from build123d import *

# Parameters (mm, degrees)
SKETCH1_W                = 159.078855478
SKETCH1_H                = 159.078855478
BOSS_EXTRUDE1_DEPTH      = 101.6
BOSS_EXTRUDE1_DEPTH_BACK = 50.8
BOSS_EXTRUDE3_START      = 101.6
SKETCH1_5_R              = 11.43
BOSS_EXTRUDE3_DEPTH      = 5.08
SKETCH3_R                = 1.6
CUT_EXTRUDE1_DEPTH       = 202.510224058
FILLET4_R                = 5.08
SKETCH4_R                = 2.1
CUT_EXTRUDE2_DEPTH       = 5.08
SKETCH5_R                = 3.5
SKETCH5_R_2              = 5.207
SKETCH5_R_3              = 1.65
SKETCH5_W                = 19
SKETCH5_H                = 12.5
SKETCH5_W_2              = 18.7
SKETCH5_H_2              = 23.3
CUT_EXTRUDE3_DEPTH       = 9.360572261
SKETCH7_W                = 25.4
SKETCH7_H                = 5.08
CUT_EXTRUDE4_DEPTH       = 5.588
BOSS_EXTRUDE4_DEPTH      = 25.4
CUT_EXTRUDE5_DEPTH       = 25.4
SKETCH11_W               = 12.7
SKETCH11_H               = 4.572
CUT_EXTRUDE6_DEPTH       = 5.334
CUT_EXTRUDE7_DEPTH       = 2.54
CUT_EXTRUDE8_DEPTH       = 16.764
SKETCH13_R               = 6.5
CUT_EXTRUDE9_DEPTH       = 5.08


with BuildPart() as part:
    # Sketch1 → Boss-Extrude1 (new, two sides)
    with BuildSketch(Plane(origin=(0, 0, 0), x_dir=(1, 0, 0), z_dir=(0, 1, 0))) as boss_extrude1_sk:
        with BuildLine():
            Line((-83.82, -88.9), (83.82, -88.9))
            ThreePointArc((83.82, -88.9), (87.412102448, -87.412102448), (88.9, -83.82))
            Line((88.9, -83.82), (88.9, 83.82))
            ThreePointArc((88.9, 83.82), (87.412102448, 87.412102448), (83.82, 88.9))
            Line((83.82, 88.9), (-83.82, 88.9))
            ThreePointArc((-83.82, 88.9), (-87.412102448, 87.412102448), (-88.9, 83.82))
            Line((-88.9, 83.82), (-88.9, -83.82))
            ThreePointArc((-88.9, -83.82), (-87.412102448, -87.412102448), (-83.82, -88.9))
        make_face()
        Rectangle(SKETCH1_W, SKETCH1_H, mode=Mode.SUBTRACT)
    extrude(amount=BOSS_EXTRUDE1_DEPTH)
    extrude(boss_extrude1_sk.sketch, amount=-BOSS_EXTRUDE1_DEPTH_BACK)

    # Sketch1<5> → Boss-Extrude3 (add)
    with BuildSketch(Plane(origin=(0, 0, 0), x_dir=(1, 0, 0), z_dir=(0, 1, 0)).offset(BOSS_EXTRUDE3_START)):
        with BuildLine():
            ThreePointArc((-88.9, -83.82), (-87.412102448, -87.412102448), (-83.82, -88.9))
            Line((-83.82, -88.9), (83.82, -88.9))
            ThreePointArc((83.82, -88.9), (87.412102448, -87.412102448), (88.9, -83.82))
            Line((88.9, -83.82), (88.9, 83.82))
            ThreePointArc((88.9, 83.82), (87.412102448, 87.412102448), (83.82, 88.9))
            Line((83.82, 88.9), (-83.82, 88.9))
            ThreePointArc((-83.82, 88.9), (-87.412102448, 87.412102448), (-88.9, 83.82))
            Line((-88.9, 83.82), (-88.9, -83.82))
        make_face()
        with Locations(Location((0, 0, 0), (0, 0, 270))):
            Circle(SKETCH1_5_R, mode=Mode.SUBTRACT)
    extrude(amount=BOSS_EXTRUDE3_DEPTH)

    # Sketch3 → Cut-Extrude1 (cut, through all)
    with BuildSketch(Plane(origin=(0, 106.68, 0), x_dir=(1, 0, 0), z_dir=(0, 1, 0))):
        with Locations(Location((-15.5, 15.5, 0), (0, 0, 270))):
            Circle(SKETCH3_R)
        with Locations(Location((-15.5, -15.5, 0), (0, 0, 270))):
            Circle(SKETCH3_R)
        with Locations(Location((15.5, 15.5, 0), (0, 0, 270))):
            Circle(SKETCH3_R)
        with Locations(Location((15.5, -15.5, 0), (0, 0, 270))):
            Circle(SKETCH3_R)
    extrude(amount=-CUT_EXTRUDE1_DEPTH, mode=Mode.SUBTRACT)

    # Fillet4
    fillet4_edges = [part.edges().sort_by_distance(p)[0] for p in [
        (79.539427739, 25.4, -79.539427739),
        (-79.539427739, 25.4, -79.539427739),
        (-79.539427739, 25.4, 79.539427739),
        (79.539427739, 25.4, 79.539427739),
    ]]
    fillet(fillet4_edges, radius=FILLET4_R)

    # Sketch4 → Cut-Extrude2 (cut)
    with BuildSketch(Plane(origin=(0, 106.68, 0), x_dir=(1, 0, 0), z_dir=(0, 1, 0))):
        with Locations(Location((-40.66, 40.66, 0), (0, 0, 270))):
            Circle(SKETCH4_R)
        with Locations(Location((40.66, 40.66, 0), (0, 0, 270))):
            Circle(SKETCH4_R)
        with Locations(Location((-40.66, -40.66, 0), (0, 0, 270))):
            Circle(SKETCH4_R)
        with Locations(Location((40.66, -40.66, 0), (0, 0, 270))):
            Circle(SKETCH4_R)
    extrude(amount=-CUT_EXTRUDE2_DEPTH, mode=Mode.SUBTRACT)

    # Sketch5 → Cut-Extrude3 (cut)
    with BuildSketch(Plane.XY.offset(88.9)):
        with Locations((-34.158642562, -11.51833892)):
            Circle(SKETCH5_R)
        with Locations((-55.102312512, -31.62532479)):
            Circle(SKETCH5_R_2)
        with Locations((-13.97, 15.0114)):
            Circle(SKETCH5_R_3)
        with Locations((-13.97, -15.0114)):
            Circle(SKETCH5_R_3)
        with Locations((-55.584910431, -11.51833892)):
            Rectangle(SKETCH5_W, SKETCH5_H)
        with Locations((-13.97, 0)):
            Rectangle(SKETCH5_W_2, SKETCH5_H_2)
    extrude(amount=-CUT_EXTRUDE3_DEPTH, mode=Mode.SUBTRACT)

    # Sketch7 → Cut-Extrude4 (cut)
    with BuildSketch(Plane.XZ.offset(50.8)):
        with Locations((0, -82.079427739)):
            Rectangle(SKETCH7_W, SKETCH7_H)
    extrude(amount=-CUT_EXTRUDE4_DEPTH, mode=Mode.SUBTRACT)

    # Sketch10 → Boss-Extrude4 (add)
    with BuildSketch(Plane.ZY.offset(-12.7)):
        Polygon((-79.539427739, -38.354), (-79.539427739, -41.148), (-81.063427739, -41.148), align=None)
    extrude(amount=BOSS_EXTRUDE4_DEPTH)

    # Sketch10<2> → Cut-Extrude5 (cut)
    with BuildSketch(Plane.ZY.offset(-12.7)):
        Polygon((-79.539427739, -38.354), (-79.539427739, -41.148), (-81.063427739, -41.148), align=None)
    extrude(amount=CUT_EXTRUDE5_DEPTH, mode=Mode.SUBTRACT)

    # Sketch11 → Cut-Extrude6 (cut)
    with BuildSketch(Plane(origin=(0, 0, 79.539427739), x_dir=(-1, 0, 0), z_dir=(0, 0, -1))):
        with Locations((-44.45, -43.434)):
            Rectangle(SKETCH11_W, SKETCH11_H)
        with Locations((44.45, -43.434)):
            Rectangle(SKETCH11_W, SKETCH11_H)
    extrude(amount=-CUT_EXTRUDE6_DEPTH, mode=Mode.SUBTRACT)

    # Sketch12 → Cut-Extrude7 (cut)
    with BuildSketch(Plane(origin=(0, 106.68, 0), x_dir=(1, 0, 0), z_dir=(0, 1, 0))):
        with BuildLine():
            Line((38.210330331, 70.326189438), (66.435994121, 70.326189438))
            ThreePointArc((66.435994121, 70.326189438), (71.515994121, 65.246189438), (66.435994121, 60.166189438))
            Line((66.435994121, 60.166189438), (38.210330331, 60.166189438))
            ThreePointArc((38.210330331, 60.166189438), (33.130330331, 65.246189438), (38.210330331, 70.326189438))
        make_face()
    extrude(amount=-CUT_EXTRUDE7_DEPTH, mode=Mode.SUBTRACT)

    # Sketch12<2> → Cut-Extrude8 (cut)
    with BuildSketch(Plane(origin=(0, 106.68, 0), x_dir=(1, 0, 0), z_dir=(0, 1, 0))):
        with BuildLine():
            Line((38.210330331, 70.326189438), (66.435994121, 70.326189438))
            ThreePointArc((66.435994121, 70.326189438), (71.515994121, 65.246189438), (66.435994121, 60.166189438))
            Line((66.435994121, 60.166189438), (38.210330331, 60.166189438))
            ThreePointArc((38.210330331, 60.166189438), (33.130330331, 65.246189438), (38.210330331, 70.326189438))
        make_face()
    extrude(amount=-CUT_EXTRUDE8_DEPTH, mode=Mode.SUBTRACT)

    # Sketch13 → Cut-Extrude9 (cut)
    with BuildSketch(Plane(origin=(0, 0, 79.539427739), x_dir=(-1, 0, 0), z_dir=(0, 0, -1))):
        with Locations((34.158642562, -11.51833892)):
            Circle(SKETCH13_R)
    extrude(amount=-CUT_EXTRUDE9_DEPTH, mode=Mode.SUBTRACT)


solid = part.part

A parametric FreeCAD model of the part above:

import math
import FreeCAD as App
import Part
import Sketcher

V = App.Vector
Q = App.Units.Quantity


def edges_at(feature, points):
    """Names of the edges that pass closest to the given points."""
    edges = feature.Shape.Edges
    near = lambda p: min(range(len(edges)), key=lambda i: edges[i].distToShape(Part.Vertex(*p))[0])
    return sorted({f"Edge{near(p) + 1}" for p in points})

doc = App.newDocument("Part")
body = doc.addObject("PartDesign::Body", "Body")

# Sketch on XZ plane
sketch1 = body.newObject("Sketcher::SketchObject", "Sketch")
sketch1.AttachmentSupport = (doc.getObject("XZ_Plane"), [""])
sketch1.MapMode = "FlatFace"
sketch1.addGeometry([
    Part.LineSegment(V(-84, 89, 0), V(84, 89, 0)),  # 0
    Part.ArcOfCircle(Part.Circle(V(84, 84, 0), V(0, 0, 1), 5), math.radians(0), math.radians(90)),  # 1
    Part.LineSegment(V(89, 84, 0), V(89, -84, 0)),  # 2
    Part.ArcOfCircle(Part.Circle(V(84, -84, 0), V(0, 0, 1), 5), math.radians(-90), math.radians(0)),  # 3
    Part.LineSegment(V(84, -89, 0), V(-84, -89, 0)),  # 4
    Part.ArcOfCircle(Part.Circle(V(-84, -84, 0), V(0, 0, 1), 5), math.radians(-180), math.radians(-90)),  # 5
    Part.LineSegment(V(-89, -84, 0), V(-89, 84, 0)),  # 6
    Part.ArcOfCircle(Part.Circle(V(-84, 84, 0), V(0, 0, 1), 5), math.radians(90), math.radians(180)),  # 7
    Part.LineSegment(V(80, 80, 0), V(-80, 80, 0)),  # 8
    Part.LineSegment(V(-80, 80, 0), V(-80, -80, 0)),  # 9
    Part.LineSegment(V(-80, -80, 0), V(80, -80, 0)),  # 10
    Part.LineSegment(V(80, -80, 0), V(80, 80, 0)),  # 11
], False)
sketch1.addConstraint([
    Sketcher.Constraint("Tangent", 0, 2, 1, 2),
    Sketcher.Constraint("Tangent", 1, 1, 2, 1),
    Sketcher.Constraint("Tangent", 2, 2, 3, 2),
    Sketcher.Constraint("Tangent", 3, 1, 4, 1),
    Sketcher.Constraint("Tangent", 4, 2, 5, 2),
    Sketcher.Constraint("Tangent", 5, 1, 6, 1),
    Sketcher.Constraint("Tangent", 6, 2, 7, 2),
    Sketcher.Constraint("Tangent", 7, 1, 0, 1),
    Sketcher.Constraint("Coincident", 8, 2, 9, 1),
    Sketcher.Constraint("Coincident", 9, 2, 10, 1),
    Sketcher.Constraint("Coincident", 10, 2, 11, 1),
    Sketcher.Constraint("Coincident", 11, 2, 8, 1),
    Sketcher.Constraint("Horizontal", 0),
    Sketcher.Constraint("Vertical", 2),
    Sketcher.Constraint("Horizontal", 4),
    Sketcher.Constraint("Vertical", 6),
    Sketcher.Constraint("Horizontal", 8),
    Sketcher.Constraint("Vertical", 9),
    Sketcher.Constraint("Horizontal", 10),
    Sketcher.Constraint("Vertical", 11),
    Sketcher.Constraint("Equal", 1, 3),
    Sketcher.Constraint("Equal", 3, 5),
    Sketcher.Constraint("Equal", 5, 7),
    Sketcher.Constraint("Symmetric", 1, 3, 5, 3, -1, 1),
    Sketcher.Constraint("Symmetric", 8, 2, 10, 2, -1, 1),
    Sketcher.Constraint("Equal", 4, 2),
    Sketcher.Constraint("Equal", 10, 9),
    Sketcher.Constraint("Radius", 1, Q("0.2 in")),
    Sketcher.Constraint("DistanceX", 0, 1, 0, 2, Q("6.6 in")),
    Sketcher.Constraint("DistanceX", 8, 2, 8, 1, 159.078855),
])
pad1 = body.newObject("PartDesign::Pad", "Pad")
pad1.Profile = sketch1
pad1.Type = "TwoLengths"
pad1.Length = Q("4 in")
pad1.Length2 = Q("2 in")
pad1.Reversed = True

# Sketch on XZ plane
sketch2 = body.newObject("Sketcher::SketchObject", "Sketch001")
sketch2.AttachmentSupport = (doc.getObject("XZ_Plane"), [""])
sketch2.MapMode = "FlatFace"
sketch2.AttachmentOffset = App.Placement(V(0, 0, -4 * 25.4), App.Rotation())
sketch2.addGeometry([
    Part.ArcOfCircle(Part.Circle(V(-84, 84, 0), V(0, 0, 1), 5), math.radians(90), math.radians(180)),  # 0
    Part.LineSegment(V(-84, 89, 0), V(84, 89, 0)),  # 1
    Part.ArcOfCircle(Part.Circle(V(84, 84, 0), V(0, 0, 1), 5), math.radians(0), math.radians(90)),  # 2
    Part.LineSegment(V(89, 84, 0), V(89, -84, 0)),  # 3
    Part.ArcOfCircle(Part.Circle(V(84, -84, 0), V(0, 0, 1), 5), math.radians(-90), math.radians(0)),  # 4
    Part.LineSegment(V(84, -89, 0), V(-84, -89, 0)),  # 5
    Part.ArcOfCircle(Part.Circle(V(-84, -84, 0), V(0, 0, 1), 5), math.radians(-180), math.radians(-90)),  # 6
    Part.LineSegment(V(-89, -84, 0), V(-89, 84, 0)),  # 7
    Part.Circle(V(0, 0, 0), V(0, 0, 1), 11),  # 8
], False)
sketch2.addConstraint([
    Sketcher.Constraint("Tangent", 0, 1, 1, 1),
    Sketcher.Constraint("Tangent", 1, 2, 2, 2),
    Sketcher.Constraint("Tangent", 2, 1, 3, 1),
    Sketcher.Constraint("Tangent", 3, 2, 4, 2),
    Sketcher.Constraint("Tangent", 4, 1, 5, 1),
    Sketcher.Constraint("Tangent", 5, 2, 6, 2),
    Sketcher.Constraint("Tangent", 6, 1, 7, 1),
    Sketcher.Constraint("Tangent", 7, 2, 0, 2),
    Sketcher.Constraint("Horizontal", 1),
    Sketcher.Constraint("Vertical", 3),
    Sketcher.Constraint("Horizontal", 5),
    Sketcher.Constraint("Vertical", 7),
    Sketcher.Constraint("Coincident", 8, 3, -1, 1),
    Sketcher.Constraint("Equal", 0, 2),
    Sketcher.Constraint("Equal", 2, 4),
    Sketcher.Constraint("Equal", 4, 6),
    Sketcher.Constraint("Symmetric", 0, 3, 4, 3, -1, 1),
    Sketcher.Constraint("Equal", 5, 3),
    Sketcher.Constraint("Diameter", 8, Q("0.9 in")),
    Sketcher.Constraint("Radius", 0, Q("0.2 in")),
    Sketcher.Constraint("DistanceX", 1, 1, 1, 2, Q("6.6 in")),
])
pad2 = body.newObject("PartDesign::Pad", "Pad001")
pad2.Profile = sketch2
pad2.Length = Q("0.2 in")
pad2.Reversed = True

# Sketch on XZ plane
sketch3 = body.newObject("Sketcher::SketchObject", "Sketch002")
sketch3.AttachmentSupport = (doc.getObject("XZ_Plane"), [""])
sketch3.MapMode = "FlatFace"
sketch3.AttachmentOffset = App.Placement(V(0, 0, -4.2 * 25.4), App.Rotation())
sketch3.addGeometry([
    Part.Circle(V(-15.5, -15.5, 0), V(0, 0, 1), 1.6),
    Part.Circle(V(-15.5, 15.5, 0), V(0, 0, 1), 1.6),
    Part.Circle(V(15.5, -15.5, 0), V(0, 0, 1), 1.6),
    Part.Circle(V(15.5, 15.5, 0), V(0, 0, 1), 1.6),
], False)
sketch3.addConstraint([
    Sketcher.Constraint("Equal", 0, 1),
    Sketcher.Constraint("Equal", 1, 2),
    Sketcher.Constraint("Equal", 2, 3),
    Sketcher.Constraint("Symmetric", 1, 3, 2, 3, -1, 1),
    Sketcher.Constraint("Symmetric", 0, 3, 3, 3, -1, 1),
    Sketcher.Constraint("Symmetric", 0, 3, 2, 3, -2),
    Sketcher.Constraint("Diameter", 0, 3.2),
    Sketcher.Constraint("DistanceX", 0, 3, -1, 1, 15.5),
    Sketcher.Constraint("DistanceY", 0, 3, -1, 1, 15.5),
])
pocket1 = body.newObject("PartDesign::Pocket", "Pocket")
pocket1.Profile = sketch3
pocket1.Type = "ThroughAll"
pocket1.Reversed = True
doc.recompute()

fillet = body.newObject("PartDesign::Fillet", "Fillet")
fillet.Base = (pocket1, edges_at(pocket1, [
    (79.539, 25.4, -79.539),
    (-79.539, 25.4, -79.539),
    (-79.539, 25.4, 79.539),
    (79.539, 25.4, 79.539),
]))
fillet.Radius = Q("0.2 in")

# Sketch on XZ plane
sketch4 = body.newObject("Sketcher::SketchObject", "Sketch003")
sketch4.AttachmentSupport = (doc.getObject("XZ_Plane"), [""])
sketch4.MapMode = "FlatFace"
sketch4.AttachmentOffset = App.Placement(V(0, 0, -4.2 * 25.4), App.Rotation())
sketch4.addGeometry([
    Part.Circle(V(-40.7, -40.7, 0), V(0, 0, 1), 2.1),
    Part.Circle(V(40.7, -40.7, 0), V(0, 0, 1), 2.1),
    Part.Circle(V(-40.7, 40.7, 0), V(0, 0, 1), 2.1),
    Part.Circle(V(40.7, 40.7, 0), V(0, 0, 1), 2.1),
], False)
sketch4.addConstraint([
    Sketcher.Constraint("Equal", 0, 1),
    Sketcher.Constraint("Equal", 1, 2),
    Sketcher.Constraint("Equal", 2, 3),
    Sketcher.Constraint("Symmetric", 1, 3, 2, 3, -1, 1),
    Sketcher.Constraint("Symmetric", 0, 3, 3, 3, -1, 1),
    Sketcher.Constraint("Symmetric", 0, 3, 1, 3, -2),
    Sketcher.Constraint("Diameter", 0, 4.2),
    Sketcher.Constraint("DistanceX", 0, 3, -1, 1, 40.66),
    Sketcher.Constraint("DistanceY", 0, 3, -1, 1, 40.66),
])
pocket2 = body.newObject("PartDesign::Pocket", "Pocket001")
pocket2.Profile = sketch4
pocket2.Length = Q("0.2 in")
pocket2.Reversed = True

# Sketch on XY plane
sketch5 = body.newObject("Sketcher::SketchObject", "Sketch004")
sketch5.AttachmentSupport = (doc.getObject("XY_Plane"), [""])
sketch5.MapMode = "FlatFace"
sketch5.AttachmentOffset = App.Placement(V(0, 0, 3.5 * 25.4), App.Rotation())
sketch5.addGeometry([
    Part.Circle(V(-34.2, -11.5, 0), V(0, 0, 1), 3.5),  # 0
    Part.Circle(V(-55.1, -31.6, 0), V(0, 0, 1), 5.2),  # 1
    Part.Circle(V(-14, 15, 0), V(0, 0, 1), 1.6),  # 2
    Part.Circle(V(-14, -15, 0), V(0, 0, 1), 1.6),  # 3
    Part.LineSegment(V(-65.1, -5.3, 0), V(-65.1, -17.8, 0)),  # 4
    Part.LineSegment(V(-65.1, -17.8, 0), V(-46.1, -17.8, 0)),  # 5
    Part.LineSegment(V(-46.1, -17.8, 0), V(-46.1, -5.3, 0)),  # 6
    Part.LineSegment(V(-46.1, -5.3, 0), V(-65.1, -5.3, 0)),  # 7
    Part.LineSegment(V(-23.3, 11.7, 0), V(-23.3, -11.7, 0)),  # 8
    Part.LineSegment(V(-23.3, -11.7, 0), V(-4.6, -11.7, 0)),  # 9
    Part.LineSegment(V(-4.6, -11.7, 0), V(-4.6, 11.7, 0)),  # 10
    Part.LineSegment(V(-4.6, 11.7, 0), V(-23.3, 11.7, 0)),  # 11
], False)
sketch5.addConstraint([
    Sketcher.Constraint("Coincident", 4, 2, 5, 1),
    Sketcher.Constraint("Coincident", 5, 2, 6, 1),
    Sketcher.Constraint("Coincident", 6, 2, 7, 1),
    Sketcher.Constraint("Coincident", 7, 2, 4, 1),
    Sketcher.Constraint("Coincident", 8, 2, 9, 1),
    Sketcher.Constraint("Coincident", 9, 2, 10, 1),
    Sketcher.Constraint("Coincident", 10, 2, 11, 1),
    Sketcher.Constraint("Coincident", 11, 2, 8, 1),
    Sketcher.Constraint("Vertical", 4),
    Sketcher.Constraint("Horizontal", 5),
    Sketcher.Constraint("Vertical", 6),
    Sketcher.Constraint("Horizontal", 7),
    Sketcher.Constraint("Vertical", 8),
    Sketcher.Constraint("Horizontal", 9),
    Sketcher.Constraint("Vertical", 10),
    Sketcher.Constraint("Horizontal", 11),
    Sketcher.Constraint("Equal", 2, 3),
    Sketcher.Constraint("Symmetric", 2, 3, 3, 3, -1),
    Sketcher.Constraint("Diameter", 1, Q("0.41 in")),
    Sketcher.Constraint("Diameter", 0, 7.0),
    Sketcher.Constraint("Diameter", 2, 3.3),
    Sketcher.Constraint("DistanceX", 2, 3, -1, 1, Q("0.55 in")),
    Sketcher.Constraint("DistanceY", -1, 1, 2, 3, Q("0.591 in")),
    Sketcher.Constraint("DistanceX", 5, 1, 5, 2, 19.0),
    Sketcher.Constraint("DistanceX", 9, 1, 9, 2, 18.7),
    Sketcher.Constraint("DistanceY", 4, 2, 4, 1, 12.5),
    Sketcher.Constraint("DistanceY", 8, 2, 8, 1, 23.3),
    Sketcher.Constraint("DistanceX", 8, 2, -1, 1, 23.32),
    Sketcher.Constraint("DistanceY", 8, 2, -1, 1, 11.65),
    Sketcher.Constraint("DistanceY", 4, 2, 0, 3, 6.25),
    Sketcher.Constraint("DistanceY", 0, 3, -1, 1, 11.518339),
    Sketcher.Constraint("DistanceX", 4, 2, -1, 1, 65.08491),
    Sketcher.Constraint("DistanceX", 1, 3, 0, 3, 20.94367),
    Sketcher.Constraint("DistanceX", 0, 3, -1, 1, 34.158643),
    Sketcher.Constraint("DistanceY", 1, 3, -1, 1, 31.625325),
])
pocket3 = body.newObject("PartDesign::Pocket", "Pocket002")
pocket3.Profile = sketch5
pocket3.Length = 9.360572

# Sketch on XZ plane
sketch6 = body.newObject("Sketcher::SketchObject", "Sketch005")
sketch6.AttachmentSupport = (doc.getObject("XZ_Plane"), [""])
sketch6.MapMode = "FlatFace"
sketch6.AttachmentOffset = App.Placement(V(0, 0, 2 * 25.4), App.Rotation())
sketch6.addGeometry([
    Part.LineSegment(V(-13, -80, 0), V(-13, -85, 0)),
    Part.LineSegment(V(-13, -85, 0), V(13, -85, 0)),
    Part.LineSegment(V(13, -85, 0), V(13, -80, 0)),
    Part.LineSegment(V(13, -80, 0), V(-13, -80, 0)),
], False)
sketch6.addConstraint([
    Sketcher.Constraint("Coincident", 0, 2, 1, 1),
    Sketcher.Constraint("Coincident", 1, 2, 2, 1),
    Sketcher.Constraint("Coincident", 2, 2, 3, 1),
    Sketcher.Constraint("Coincident", 3, 2, 0, 1),
    Sketcher.Constraint("Vertical", 0),
    Sketcher.Constraint("Horizontal", 1),
    Sketcher.Constraint("Vertical", 2),
    Sketcher.Constraint("Horizontal", 3),
    Sketcher.Constraint("DistanceX", 1, 1, 1, 2, Q("1 in")),
    Sketcher.Constraint("DistanceY", 0, 2, 0, 1, Q("0.2 in")),
    Sketcher.Constraint("DistanceX", 0, 2, -1, 1, Q("0.5 in")),
    Sketcher.Constraint("DistanceY", 0, 2, -1, 1, 84.619428),
])
pocket4 = body.newObject("PartDesign::Pocket", "Pocket003")
pocket4.Profile = sketch6
pocket4.Length = Q("0.22 in")

# Sketch on YZ plane
sketch7 = body.newObject("Sketcher::SketchObject", "Sketch006")
sketch7.AttachmentSupport = (doc.getObject("YZ_Plane"), [""])
sketch7.MapMode = "FlatFace"
sketch7.AttachmentOffset = App.Placement(V(0, 0, 0.5 * 25.4), App.Rotation())
sketch7.addGeometry([
    Part.LineSegment(V(-41.1, -79.5, 0), V(-38.4, -79.5, 0)),
    Part.LineSegment(V(-38.4, -79.5, 0), V(-41.1, -81.1, 0)),
    Part.LineSegment(V(-41.1, -81.1, 0), V(-41.1, -79.5, 0)),
], False)
sketch7.addConstraint([
    Sketcher.Constraint("Coincident", 0, 2, 1, 1),
    Sketcher.Constraint("Coincident", 1, 2, 2, 1),
    Sketcher.Constraint("Coincident", 2, 2, 0, 1),
    Sketcher.Constraint("Horizontal", 0),
    Sketcher.Constraint("Vertical", 2),
    Sketcher.Constraint("DistanceX", 0, 1, 0, 2, Q("0.11 in")),
    Sketcher.Constraint("DistanceY", 2, 1, 2, 2, Q("0.06 in")),
    Sketcher.Constraint("DistanceX", 0, 2, -1, 1, Q("1.51 in")),
    Sketcher.Constraint("DistanceY", 0, 2, -1, 1, 79.539428),
])
pad3 = body.newObject("PartDesign::Pad", "Pad002")
pad3.Profile = sketch7
pad3.Length = Q("1 in")
pad3.Reversed = True

# Sketch on YZ plane
sketch8 = body.newObject("Sketcher::SketchObject", "Sketch007")
sketch8.AttachmentSupport = (doc.getObject("YZ_Plane"), [""])
sketch8.MapMode = "FlatFace"
sketch8.AttachmentOffset = App.Placement(V(0, 0, 0.5 * 25.4), App.Rotation())
sketch8.addGeometry([
    Part.LineSegment(V(-41.1, -79.5, 0), V(-38.4, -79.5, 0)),
    Part.LineSegment(V(-38.4, -79.5, 0), V(-41.1, -81.1, 0)),
    Part.LineSegment(V(-41.1, -81.1, 0), V(-41.1, -79.5, 0)),
], False)
sketch8.addConstraint([
    Sketcher.Constraint("Coincident", 0, 2, 1, 1),
    Sketcher.Constraint("Coincident", 1, 2, 2, 1),
    Sketcher.Constraint("Coincident", 2, 2, 0, 1),
    Sketcher.Constraint("Horizontal", 0),
    Sketcher.Constraint("Vertical", 2),
    Sketcher.Constraint("DistanceX", 0, 1, 0, 2, Q("0.11 in")),
    Sketcher.Constraint("DistanceY", 2, 1, 2, 2, Q("0.06 in")),
    Sketcher.Constraint("DistanceX", 0, 2, -1, 1, Q("1.51 in")),
    Sketcher.Constraint("DistanceY", 0, 2, -1, 1, 79.539428),
])
pocket5 = body.newObject("PartDesign::Pocket", "Pocket004")
pocket5.Profile = sketch8
pocket5.Length = Q("1 in")

# Sketch on XY plane
sketch9 = body.newObject("Sketcher::SketchObject", "Sketch008")
sketch9.AttachmentSupport = (doc.getObject("XY_Plane"), [""])
sketch9.MapMode = "FlatFace"
sketch9.AttachmentOffset = App.Placement(V(0, 0, 79.539428), App.Rotation())
sketch9.addGeometry([
    Part.LineSegment(V(50.8, -41.1, 0), V(50.8, -45.7, 0)),  # 0
    Part.LineSegment(V(50.8, -45.7, 0), V(38.1, -45.7, 0)),  # 1
    Part.LineSegment(V(38.1, -45.7, 0), V(38.1, -41.1, 0)),  # 2
    Part.LineSegment(V(38.1, -41.1, 0), V(50.8, -41.1, 0)),  # 3
    Part.LineSegment(V(-38.1, -41.1, 0), V(-38.1, -45.7, 0)),  # 4
    Part.LineSegment(V(-38.1, -45.7, 0), V(-50.8, -45.7, 0)),  # 5
    Part.LineSegment(V(-50.8, -45.7, 0), V(-50.8, -41.1, 0)),  # 6
    Part.LineSegment(V(-50.8, -41.1, 0), V(-38.1, -41.1, 0)),  # 7
], False)
sketch9.addConstraint([
    Sketcher.Constraint("Coincident", 0, 2, 1, 1),
    Sketcher.Constraint("Coincident", 1, 2, 2, 1),
    Sketcher.Constraint("Coincident", 2, 2, 3, 1),
    Sketcher.Constraint("Coincident", 3, 2, 0, 1),
    Sketcher.Constraint("Coincident", 4, 2, 5, 1),
    Sketcher.Constraint("Coincident", 5, 2, 6, 1),
    Sketcher.Constraint("Coincident", 6, 2, 7, 1),
    Sketcher.Constraint("Coincident", 7, 2, 4, 1),
    Sketcher.Constraint("Vertical", 0),
    Sketcher.Constraint("Horizontal", 1),
    Sketcher.Constraint("Vertical", 2),
    Sketcher.Constraint("Horizontal", 3),
    Sketcher.Constraint("Vertical", 4),
    Sketcher.Constraint("Horizontal", 5),
    Sketcher.Constraint("Vertical", 6),
    Sketcher.Constraint("Horizontal", 7),
    Sketcher.Constraint("Symmetric", 1, 2, 4, 2, -2),
    Sketcher.Constraint("Symmetric", 3, 2, 6, 2, -2),
    Sketcher.Constraint("DistanceX", 1, 2, 1, 1, Q("0.5 in")),
    Sketcher.Constraint("DistanceX", -1, 1, 0, 2, Q("2 in")),
    Sketcher.Constraint("DistanceY", 0, 2, 0, 1, Q("0.18 in")),
    Sketcher.Constraint("DistanceY", 0, 2, -1, 1, Q("1.8 in")),
])
pocket6 = body.newObject("PartDesign::Pocket", "Pocket005")
pocket6.Profile = sketch9
pocket6.Length = Q("0.21 in")
pocket6.Reversed = True

# Sketch on XZ plane
sketch10 = body.newObject("Sketcher::SketchObject", "Sketch009")
sketch10.AttachmentSupport = (doc.getObject("XZ_Plane"), [""])
sketch10.MapMode = "FlatFace"
sketch10.AttachmentOffset = App.Placement(V(0, 0, -4.2 * 25.4), App.Rotation())
sketch10.addGeometry([
    Part.LineSegment(V(66, -70, 0), V(38, -70, 0)),
    Part.ArcOfCircle(Part.Circle(V(38, -65, 0), V(0, 0, 1), 5), math.radians(90), math.radians(270)),
    Part.LineSegment(V(38, -60, 0), V(66, -60, 0)),
    Part.ArcOfCircle(Part.Circle(V(66, -65, 0), V(0, 0, 1), 5), math.radians(-90), math.radians(90)),
], False)
sketch10.addConstraint([
    Sketcher.Constraint("Tangent", 0, 2, 1, 2),
    Sketcher.Constraint("Tangent", 1, 1, 2, 1),
    Sketcher.Constraint("Tangent", 2, 2, 3, 2),
    Sketcher.Constraint("Tangent", 3, 1, 0, 1),
    Sketcher.Constraint("Horizontal", 0),
    Sketcher.Constraint("Horizontal", 2),
    Sketcher.Constraint("Radius", 1, Q("0.2 in")),
    Sketcher.Constraint("DistanceX", 0, 2, 0, 1, 28.225664),
    Sketcher.Constraint("DistanceX", -1, 1, 1, 3, 38.21033),
    Sketcher.Constraint("DistanceY", 1, 3, -1, 1, 65.246189),
])
pocket7 = body.newObject("PartDesign::Pocket", "Pocket006")
pocket7.Profile = sketch10
pocket7.Length = Q("0.1 in")
pocket7.Reversed = True

# Sketch on XZ plane
sketch11 = body.newObject("Sketcher::SketchObject", "Sketch010")
sketch11.AttachmentSupport = (doc.getObject("XZ_Plane"), [""])
sketch11.MapMode = "FlatFace"
sketch11.AttachmentOffset = App.Placement(V(0, 0, -4.2 * 25.4), App.Rotation())
sketch11.addGeometry([
    Part.LineSegment(V(66, -70, 0), V(38, -70, 0)),
    Part.ArcOfCircle(Part.Circle(V(38, -65, 0), V(0, 0, 1), 5), math.radians(90), math.radians(270)),
    Part.LineSegment(V(38, -60, 0), V(66, -60, 0)),
    Part.ArcOfCircle(Part.Circle(V(66, -65, 0), V(0, 0, 1), 5), math.radians(-90), math.radians(90)),
], False)
sketch11.addConstraint([
    Sketcher.Constraint("Tangent", 0, 2, 1, 2),
    Sketcher.Constraint("Tangent", 1, 1, 2, 1),
    Sketcher.Constraint("Tangent", 2, 2, 3, 2),
    Sketcher.Constraint("Tangent", 3, 1, 0, 1),
    Sketcher.Constraint("Horizontal", 0),
    Sketcher.Constraint("Horizontal", 2),
    Sketcher.Constraint("Radius", 1, Q("0.2 in")),
    Sketcher.Constraint("DistanceX", 0, 2, 0, 1, 28.225664),
    Sketcher.Constraint("DistanceX", -1, 1, 1, 3, 38.21033),
    Sketcher.Constraint("DistanceY", 1, 3, -1, 1, 65.246189),
])
pocket8 = body.newObject("PartDesign::Pocket", "Pocket007")
pocket8.Profile = sketch11
pocket8.Length = Q("0.66 in")
pocket8.Reversed = True

# Sketch on XY plane
sketch12 = body.newObject("Sketcher::SketchObject", "Sketch011")
sketch12.AttachmentSupport = (doc.getObject("XY_Plane"), [""])
sketch12.MapMode = "FlatFace"
sketch12.AttachmentOffset = App.Placement(V(0, 0, 79.539428), App.Rotation())
sketch12.addGeometry(Part.Circle(V(-34, -12, 0), V(0, 0, 1), 6), False)
sketch12.addConstraint([
    Sketcher.Constraint("Diameter", 0, 13.0),
    Sketcher.Constraint("DistanceY", 0, 3, -1, 1, 11.518339),
    Sketcher.Constraint("DistanceX", 0, 3, -1, 1, 34.158643),
])
pocket9 = body.newObject("PartDesign::Pocket", "Pocket008")
pocket9.Profile = sketch12
pocket9.Length = Q("0.2 in")
pocket9.Reversed = True

doc.recompute()
